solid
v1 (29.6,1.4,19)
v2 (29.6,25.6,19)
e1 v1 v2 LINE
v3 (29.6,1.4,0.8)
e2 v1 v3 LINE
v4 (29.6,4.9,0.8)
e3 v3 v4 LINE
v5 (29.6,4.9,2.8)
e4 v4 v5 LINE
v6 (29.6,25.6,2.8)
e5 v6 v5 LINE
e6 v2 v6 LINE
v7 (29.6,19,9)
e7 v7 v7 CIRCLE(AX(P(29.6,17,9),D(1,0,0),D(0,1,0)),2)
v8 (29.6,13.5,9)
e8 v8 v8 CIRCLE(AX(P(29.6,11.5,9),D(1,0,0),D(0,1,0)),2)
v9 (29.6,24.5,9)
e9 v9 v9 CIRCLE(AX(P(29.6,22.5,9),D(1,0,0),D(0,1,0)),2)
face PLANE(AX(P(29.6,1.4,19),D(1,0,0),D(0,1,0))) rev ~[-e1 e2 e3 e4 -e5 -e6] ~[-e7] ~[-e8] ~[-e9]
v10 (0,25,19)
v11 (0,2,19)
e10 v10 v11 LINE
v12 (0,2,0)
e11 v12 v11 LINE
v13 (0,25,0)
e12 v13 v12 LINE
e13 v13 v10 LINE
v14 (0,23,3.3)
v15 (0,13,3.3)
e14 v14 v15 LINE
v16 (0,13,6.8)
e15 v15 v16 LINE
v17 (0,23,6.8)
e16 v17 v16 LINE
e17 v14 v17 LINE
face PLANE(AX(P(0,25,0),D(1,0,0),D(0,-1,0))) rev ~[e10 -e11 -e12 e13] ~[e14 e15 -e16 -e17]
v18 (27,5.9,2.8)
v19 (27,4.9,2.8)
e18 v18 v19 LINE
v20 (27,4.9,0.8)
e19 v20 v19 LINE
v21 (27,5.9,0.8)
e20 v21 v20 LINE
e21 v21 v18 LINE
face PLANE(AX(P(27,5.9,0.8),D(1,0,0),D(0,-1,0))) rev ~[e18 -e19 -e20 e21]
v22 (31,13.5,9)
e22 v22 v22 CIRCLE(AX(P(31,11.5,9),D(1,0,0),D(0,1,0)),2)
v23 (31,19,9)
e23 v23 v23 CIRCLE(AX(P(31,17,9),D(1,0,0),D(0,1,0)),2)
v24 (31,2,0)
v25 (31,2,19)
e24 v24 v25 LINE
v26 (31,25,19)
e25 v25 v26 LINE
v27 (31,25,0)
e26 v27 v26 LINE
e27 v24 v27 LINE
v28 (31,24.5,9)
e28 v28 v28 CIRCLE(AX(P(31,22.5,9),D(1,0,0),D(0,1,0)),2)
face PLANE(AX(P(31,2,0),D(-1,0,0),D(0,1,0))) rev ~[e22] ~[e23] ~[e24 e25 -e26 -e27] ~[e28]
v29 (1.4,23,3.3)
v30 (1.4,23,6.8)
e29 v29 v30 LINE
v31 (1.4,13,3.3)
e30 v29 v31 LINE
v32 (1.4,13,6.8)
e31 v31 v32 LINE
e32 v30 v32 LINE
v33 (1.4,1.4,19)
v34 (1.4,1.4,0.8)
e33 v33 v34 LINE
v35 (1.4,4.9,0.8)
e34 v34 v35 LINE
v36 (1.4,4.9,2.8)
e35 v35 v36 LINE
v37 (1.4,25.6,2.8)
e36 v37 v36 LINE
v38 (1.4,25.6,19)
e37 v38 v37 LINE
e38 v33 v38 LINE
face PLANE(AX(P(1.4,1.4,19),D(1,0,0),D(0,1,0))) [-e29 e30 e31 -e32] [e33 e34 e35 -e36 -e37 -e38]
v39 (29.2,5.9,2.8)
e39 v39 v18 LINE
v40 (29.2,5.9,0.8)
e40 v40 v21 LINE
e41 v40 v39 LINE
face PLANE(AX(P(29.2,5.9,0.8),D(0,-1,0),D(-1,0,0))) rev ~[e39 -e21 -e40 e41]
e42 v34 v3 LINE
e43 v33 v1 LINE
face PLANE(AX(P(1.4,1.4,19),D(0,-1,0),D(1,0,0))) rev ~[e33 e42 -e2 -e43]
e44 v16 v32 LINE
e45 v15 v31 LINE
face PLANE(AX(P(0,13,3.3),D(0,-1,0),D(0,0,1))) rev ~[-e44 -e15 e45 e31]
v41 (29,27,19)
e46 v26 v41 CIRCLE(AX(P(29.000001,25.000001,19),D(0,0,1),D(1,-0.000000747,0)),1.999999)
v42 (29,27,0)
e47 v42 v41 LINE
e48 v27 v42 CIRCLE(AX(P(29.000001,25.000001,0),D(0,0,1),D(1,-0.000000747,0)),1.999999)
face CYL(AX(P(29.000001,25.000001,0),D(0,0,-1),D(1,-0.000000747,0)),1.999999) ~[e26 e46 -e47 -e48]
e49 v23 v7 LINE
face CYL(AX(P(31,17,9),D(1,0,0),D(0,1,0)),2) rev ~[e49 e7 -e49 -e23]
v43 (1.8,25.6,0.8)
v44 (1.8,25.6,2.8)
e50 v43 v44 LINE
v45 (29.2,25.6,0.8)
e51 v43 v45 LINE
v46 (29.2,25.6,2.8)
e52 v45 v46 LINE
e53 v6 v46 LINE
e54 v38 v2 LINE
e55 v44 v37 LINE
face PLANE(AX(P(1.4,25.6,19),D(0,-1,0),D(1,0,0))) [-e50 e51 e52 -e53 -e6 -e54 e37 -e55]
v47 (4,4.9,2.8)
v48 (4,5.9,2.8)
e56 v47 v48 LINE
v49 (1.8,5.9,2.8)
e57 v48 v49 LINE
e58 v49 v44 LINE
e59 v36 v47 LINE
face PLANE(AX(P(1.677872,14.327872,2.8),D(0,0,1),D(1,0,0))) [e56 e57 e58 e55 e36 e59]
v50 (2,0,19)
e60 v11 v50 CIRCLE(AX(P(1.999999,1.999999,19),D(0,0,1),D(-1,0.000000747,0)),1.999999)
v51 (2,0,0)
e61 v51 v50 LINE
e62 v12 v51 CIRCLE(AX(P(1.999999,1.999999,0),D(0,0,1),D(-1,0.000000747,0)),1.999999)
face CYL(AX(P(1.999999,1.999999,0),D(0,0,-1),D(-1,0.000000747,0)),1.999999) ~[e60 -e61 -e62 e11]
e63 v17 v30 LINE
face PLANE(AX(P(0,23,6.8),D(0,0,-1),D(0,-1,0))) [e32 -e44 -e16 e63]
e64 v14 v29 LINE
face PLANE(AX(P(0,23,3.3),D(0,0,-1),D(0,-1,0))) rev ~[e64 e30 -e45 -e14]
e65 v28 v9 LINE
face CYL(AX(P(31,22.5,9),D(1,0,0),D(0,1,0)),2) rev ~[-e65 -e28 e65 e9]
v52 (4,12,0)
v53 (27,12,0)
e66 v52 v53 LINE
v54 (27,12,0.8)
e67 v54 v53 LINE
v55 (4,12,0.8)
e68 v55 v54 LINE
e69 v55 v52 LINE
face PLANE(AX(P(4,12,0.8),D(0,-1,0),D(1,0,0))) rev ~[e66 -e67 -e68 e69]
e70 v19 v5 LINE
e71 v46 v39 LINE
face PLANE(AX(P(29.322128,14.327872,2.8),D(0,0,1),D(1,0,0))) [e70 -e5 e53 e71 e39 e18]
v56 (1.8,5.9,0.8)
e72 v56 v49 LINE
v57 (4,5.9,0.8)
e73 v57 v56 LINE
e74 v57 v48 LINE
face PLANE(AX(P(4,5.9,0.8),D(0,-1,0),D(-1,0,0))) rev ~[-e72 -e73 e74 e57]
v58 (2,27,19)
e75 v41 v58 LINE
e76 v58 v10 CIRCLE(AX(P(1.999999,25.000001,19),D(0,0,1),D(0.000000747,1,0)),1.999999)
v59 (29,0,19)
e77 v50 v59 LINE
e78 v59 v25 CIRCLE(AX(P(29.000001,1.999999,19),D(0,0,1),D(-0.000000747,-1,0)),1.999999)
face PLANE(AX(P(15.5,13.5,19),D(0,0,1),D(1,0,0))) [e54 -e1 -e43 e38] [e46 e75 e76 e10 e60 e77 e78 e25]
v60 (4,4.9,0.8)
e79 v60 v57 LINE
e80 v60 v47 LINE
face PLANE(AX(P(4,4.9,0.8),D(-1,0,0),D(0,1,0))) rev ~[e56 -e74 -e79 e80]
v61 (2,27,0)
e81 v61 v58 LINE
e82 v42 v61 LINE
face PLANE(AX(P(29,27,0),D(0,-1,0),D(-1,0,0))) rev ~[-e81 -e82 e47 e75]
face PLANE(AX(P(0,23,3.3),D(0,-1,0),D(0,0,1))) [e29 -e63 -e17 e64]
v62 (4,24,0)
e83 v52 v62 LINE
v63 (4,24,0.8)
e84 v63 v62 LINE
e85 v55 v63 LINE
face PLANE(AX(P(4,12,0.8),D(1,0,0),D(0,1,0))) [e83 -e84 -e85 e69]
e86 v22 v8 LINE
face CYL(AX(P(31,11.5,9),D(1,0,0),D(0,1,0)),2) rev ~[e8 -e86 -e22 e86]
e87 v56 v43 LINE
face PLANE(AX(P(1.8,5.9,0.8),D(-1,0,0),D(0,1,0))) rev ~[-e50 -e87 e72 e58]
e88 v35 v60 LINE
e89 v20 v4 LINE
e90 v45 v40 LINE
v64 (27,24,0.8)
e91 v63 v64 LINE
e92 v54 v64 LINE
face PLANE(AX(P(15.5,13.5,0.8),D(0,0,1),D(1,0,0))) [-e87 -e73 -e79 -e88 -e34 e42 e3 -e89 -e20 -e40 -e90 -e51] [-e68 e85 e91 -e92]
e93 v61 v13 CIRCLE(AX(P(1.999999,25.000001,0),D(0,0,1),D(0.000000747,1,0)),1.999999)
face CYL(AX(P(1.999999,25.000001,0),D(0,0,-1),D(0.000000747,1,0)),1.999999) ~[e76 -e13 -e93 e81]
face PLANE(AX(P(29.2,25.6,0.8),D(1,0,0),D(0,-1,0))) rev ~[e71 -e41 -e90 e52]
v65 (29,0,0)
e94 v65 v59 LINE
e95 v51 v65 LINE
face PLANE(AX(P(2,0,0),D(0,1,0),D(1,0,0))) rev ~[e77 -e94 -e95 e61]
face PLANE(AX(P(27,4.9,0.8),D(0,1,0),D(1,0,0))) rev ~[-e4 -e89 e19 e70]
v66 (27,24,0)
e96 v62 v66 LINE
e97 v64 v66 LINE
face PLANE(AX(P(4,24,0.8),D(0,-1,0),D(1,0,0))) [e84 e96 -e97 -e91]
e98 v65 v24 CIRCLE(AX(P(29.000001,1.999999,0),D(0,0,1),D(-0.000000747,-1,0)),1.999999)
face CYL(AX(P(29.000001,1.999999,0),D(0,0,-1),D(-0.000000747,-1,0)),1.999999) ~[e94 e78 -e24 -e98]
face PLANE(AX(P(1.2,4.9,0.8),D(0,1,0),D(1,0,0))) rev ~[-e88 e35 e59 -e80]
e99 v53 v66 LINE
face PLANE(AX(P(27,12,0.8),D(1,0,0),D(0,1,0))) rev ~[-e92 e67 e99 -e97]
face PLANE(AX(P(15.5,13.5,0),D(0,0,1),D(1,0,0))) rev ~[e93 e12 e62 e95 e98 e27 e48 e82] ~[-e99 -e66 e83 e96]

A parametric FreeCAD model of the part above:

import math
import FreeCAD as App
import Part
import Sketcher
Q = App.Units.Quantity


def add_polygon(sketch, points):
    """Adds a closed chain of lines whose ends are joined by coincident constraints."""
    first, n = sketch.GeometryCount, len(points)
    for a, b in zip(points, points[1:] + points[:1]):
        sketch.addGeometry(Part.LineSegment(App.Vector(*a, 0), App.Vector(*b, 0)), False)
    for i in range(n):
        sketch.addConstraint(Sketcher.Constraint("Coincident", first + i, 2, first + (i + 1) % n, 1))

doc = App.newDocument("Part")
params = doc.addObject("Spreadsheet::Sheet", "Params")
for row, (alias, value) in enumerate([
    ("sketch1_radius", "1.999999 mm"),
    ("sketch1_width", "27 mm"),
    ("sketch1_height", "23 mm"),
    ("pad1_length", "19 mm"),
    ("sketch2_width", "28.2 mm"),
    ("sketch2_height", "24.2 mm"),
    ("pocket1_length", "18.2 mm"),
    ("sketch3_width", "23 mm"),
    ("sketch3_height", "12 mm"),
    ("pocket2_length", "0.8 mm"),
    ("sketch4_diameter", "4 mm"),
    ("pocket3_length", "1.4 mm"),
    ("sketch5_width", "10 mm"),
    ("sketch5_height", "3.5 mm"),
    ("pocket4_length", "1.4 mm"),
    ("sketch6_height", "1 mm"),
    ("sketch6_width", "2.8 mm"),
    ("sketch6_width2", "2.2 mm"),
    ("sketch6_height2", "20.7 mm"),
    ("pad2_length", "2 mm"),
], start=1):
    params.set(f"A{row}", alias)
    params.set(f"B{row}", "=" + value)
    params.setAlias(f"B{row}", alias)

body = doc.addObject("PartDesign::Body", "Body")

sketch1 = doc.addObject("Sketcher::SketchObject", "Sketch")
body.addObject(sketch1)
sketch1.AttachmentSupport = (doc.XY_Plane, [""])
sketch1.MapMode = "FlatFace"
sketch1.addGeometry(Part.ArcOfCircle(Part.Circle(App.Vector(2, 2, 0), App.Vector(0, 0, 1), 2), math.radians(180), math.radians(270)), False)
sketch1.addGeometry(Part.LineSegment(App.Vector(2, 0, 0), App.Vector(29, 0, 0)), False)
sketch1.addGeometry(Part.ArcOfCircle(Part.Circle(App.Vector(29, 2, 0), App.Vector(0, 0, 1), 2), math.radians(-90), math.radians(0)), False)
sketch1.addGeometry(Part.LineSegment(App.Vector(31, 2, 0), App.Vector(31, 25, 0)), False)
sketch1.addGeometry(Part.ArcOfCircle(Part.Circle(App.Vector(29, 25, 0), App.Vector(0, 0, 1), 2), math.radians(0), math.radians(90)), False)
sketch1.addGeometry(Part.LineSegment(App.Vector(29, 27, 0), App.Vector(2, 27, 0)), False)
sketch1.addGeometry(Part.ArcOfCircle(Part.Circle(App.Vector(2, 25, 0), App.Vector(0, 0, 1), 2), math.radians(90), math.radians(180)), False)
sketch1.addGeometry(Part.LineSegment(App.Vector(0, 25, 0), App.Vector(0, 2, 0)), False)
sketch1.addConstraint(Sketcher.Constraint("Tangent", 0, 2, 1, 1))
sketch1.addConstraint(Sketcher.Constraint("Tangent", 1, 2, 2, 1))
sketch1.addConstraint(Sketcher.Constraint("Tangent", 2, 2, 3, 1))
sketch1.addConstraint(Sketcher.Constraint("Tangent", 3, 2, 4, 1))
sketch1.addConstraint(Sketcher.Constraint("Tangent", 4, 2, 5, 1))
sketch1.addConstraint(Sketcher.Constraint("Tangent", 5, 2, 6, 1))
sketch1.addConstraint(Sketcher.Constraint("Tangent", 6, 2, 7, 1))
sketch1.addConstraint(Sketcher.Constraint("Tangent", 7, 2, 0, 1))
sketch1.addConstraint(Sketcher.Constraint("Horizontal", 1))
sketch1.addConstraint(Sketcher.Constraint("Vertical", 3))
sketch1.addConstraint(Sketcher.Constraint("Horizontal", 5))
sketch1.addConstraint(Sketcher.Constraint("Vertical", 7))
sketch1.addConstraint(Sketcher.Constraint("Equal", 0, 2))
sketch1.addConstraint(Sketcher.Constraint("Equal", 2, 4))
sketch1.addConstraint(Sketcher.Constraint("Equal", 4, 6))
sketch1.addConstraint(Sketcher.Constraint("PointOnObject", 0, 2, -1))
sketch1.addConstraint(Sketcher.Constraint("PointOnObject", 6, 2, -2))
sketch1.addConstraint(Sketcher.Constraint("Radius", 0, Q("1.999999 mm")))
sketch1.addConstraint(Sketcher.Constraint("DistanceX", 1, 1, 1, 2, Q("27 mm")))
sketch1.addConstraint(Sketcher.Constraint("DistanceY", 3, 1, 3, 2, Q("23 mm")))
sketch1.setExpression("Constraints[17]", "Params.sketch1_radius")
sketch1.setExpression("Constraints[18]", "Params.sketch1_width")
sketch1.setExpression("Constraints[19]", "Params.sketch1_height")
pad1 = doc.addObject("PartDesign::Pad", "Pad")
body.addObject(pad1)
pad1.Profile = sketch1
pad1.setExpression("Length", "Params.pad1_length")

sketch2 = doc.addObject("Sketcher::SketchObject", "Sketch001")
body.addObject(sketch2)
sketch2.AttachmentSupport = (doc.XY_Plane, [""])
sketch2.MapMode = "FlatFace"
sketch2.AttachmentOffset = App.Placement(App.Vector(0, 0, 19), App.Rotation())
add_polygon(sketch2, [(1, 26), (1, 1), (30, 1), (30, 26)])
sketch2.addConstraint(Sketcher.Constraint("Vertical", 0))
sketch2.addConstraint(Sketcher.Constraint("Horizontal", 1))
sketch2.addConstraint(Sketcher.Constraint("Vertical", 2))
sketch2.addConstraint(Sketcher.Constraint("Horizontal", 3))
sketch2.addConstraint(Sketcher.Constraint("DistanceX", 1, 1, 1, 2, Q("28.2 mm")))
sketch2.addConstraint(Sketcher.Constraint("DistanceY", 0, 2, 0, 1, Q("24.2 mm")))
sketch2.addConstraint(Sketcher.Constraint("DistanceX", -1, 1, 0, 2, Q("1.4 mm")))
sketch2.addConstraint(Sketcher.Constraint("DistanceY", -1, 1, 0, 2, Q("1.4 mm")))
sketch2.setExpression("Constraints[8]", "Params.sketch2_width")
sketch2.setExpression("Constraints[9]", "Params.sketch2_height")
pocket1 = doc.addObject("PartDesign::Pocket", "Pocket")
body.addObject(pocket1)
pocket1.Profile = sketch2
pocket1.setExpression("Length", "Params.pocket1_length")

sketch3 = doc.addObject("Sketcher::SketchObject", "Sketch002")
body.addObject(sketch3)
sketch3.AttachmentSupport = (doc.XY_Plane, [""])
sketch3.MapMode = "FlatFace"
sketch3.AttachmentOffset = App.Placement(App.Vector(0, 0, 0.8), App.Rotation())
add_polygon(sketch3, [(4, 24), (4, 12), (27, 12), (27, 24)])
sketch3.addConstraint(Sketcher.Constraint("Vertical", 0))
sketch3.addConstraint(Sketcher.Constraint("Horizontal", 1))
sketch3.addConstraint(Sketcher.Constraint("Vertical", 2))
sketch3.addConstraint(Sketcher.Constraint("Horizontal", 3))
sketch3.addConstraint(Sketcher.Constraint("DistanceX", 1, 1, 1, 2, Q("23 mm")))
sketch3.addConstraint(Sketcher.Constraint("DistanceY", 0, 2, 0, 1, Q("12 mm")))
sketch3.addConstraint(Sketcher.Constraint("DistanceX", -1, 1, 0, 2, Q("4 mm")))
sketch3.addConstraint(Sketcher.Constraint("DistanceY", -1, 1, 0, 2, Q("12 mm")))
sketch3.setExpression("Constraints[8]", "Params.sketch3_width")
sketch3.setExpression("Constraints[9]", "Params.sketch3_height")
pocket2 = doc.addObject("PartDesign::Pocket", "Pocket001")
body.addObject(pocket2)
pocket2.Profile = sketch3
pocket2.setExpression("Length", "Params.pocket2_length")

sketch4 = doc.addObject("Sketcher::SketchObject", "Sketch003")
body.addObject(sketch4)
sketch4.AttachmentSupport = (doc.YZ_Plane, [""])
sketch4.MapMode = "FlatFace"
sketch4.AttachmentOffset = App.Placement(App.Vector(0, 0, 31), App.Rotation())
sketch4.addGeometry(Part.Circle(App.Vector(11.5, 9, 0), App.Vector(0, 0, 1), 2), False)
sketch4.addGeometry(Part.Circle(App.Vector(17, 9, 0), App.Vector(0, 0, 1), 2), False)
sketch4.addGeometry(Part.Circle(App.Vector(22.5, 9, 0), App.Vector(0, 0, 1), 2), False)
sketch4.addConstraint(Sketcher.Constraint("Equal", 0, 1))
sketch4.addConstraint(Sketcher.Constraint("Equal", 1, 2))
sketch4.addConstraint(Sketcher.Constraint("Horizontal", 0, 3, 1, 3))
sketch4.addConstraint(Sketcher.Constraint("Horizontal", 1, 3, 2, 3))
sketch4.addConstraint(Sketcher.Constraint("Diameter", 0, Q("4 mm")))
sketch4.addConstraint(Sketcher.Constraint("DistanceY", -1, 1, 0, 3, Q("9 mm")))
sketch4.addConstraint(Sketcher.Constraint("DistanceX", -1, 1, 1, 3, Q("17 mm")))
sketch4.addConstraint(Sketcher.Constraint("DistanceX", 0, 3, 2, 3, Q("11 mm")))
sketch4.addConstraint(Sketcher.Constraint("DistanceX", -1, 1, 0, 3, Q("11.5 mm")))
sketch4.setExpression("Constraints[4]", "Params.sketch4_diameter")
pocket3 = doc.addObject("PartDesign::Pocket", "Pocket002")
body.addObject(pocket3)
pocket3.Profile = sketch4
pocket3.setExpression("Length", "Params.pocket3_length")

sketch5 = doc.addObject("Sketcher::SketchObject", "Sketch004")
body.addObject(sketch5)
sketch5.AttachmentSupport = (doc.YZ_Plane, [""])
sketch5.MapMode = "FlatFace"
add_polygon(sketch5, [(23, 6.8), (23, 3.3), (13, 3.3), (13, 6.8)])
sketch5.addConstraint(Sketcher.Constraint("Vertical", 0))
sketch5.addConstraint(Sketcher.Constraint("Horizontal", 1))
sketch5.addConstraint(Sketcher.Constraint("Vertical", 2))
sketch5.addConstraint(Sketcher.Constraint("Horizontal", 3))
sketch5.addConstraint(Sketcher.Constraint("DistanceX", 1, 2, 1, 1, Q("10 mm")))
sketch5.addConstraint(Sketcher.Constraint("DistanceY", 0, 2, 0, 1, Q("3.5 mm")))
sketch5.addConstraint(Sketcher.Constraint("DistanceX", -1, 1, 0, 2, Q("23 mm")))
sketch5.addConstraint(Sketcher.Constraint("DistanceY", -1, 1, 0, 2, Q("3.3 mm")))
sketch5.setExpression("Constraints[8]", "Params.sketch5_width")
sketch5.setExpression("Constraints[9]", "Params.sketch5_height")
pocket4 = doc.addObject("PartDesign::Pocket", "Pocket003")
body.addObject(pocket4)
pocket4.Profile = sketch5
pocket4.setExpression("Length", "Params.pocket4_length")
pocket4.Reversed = True

sketch6 = doc.addObject("Sketcher::SketchObject", "Sketch005")
body.addObject(sketch6)
sketch6.AttachmentSupport = (doc.XY_Plane, [""])
sketch6.MapMode = "FlatFace"
sketch6.AttachmentOffset = App.Placement(App.Vector(0, 0, 0.8), App.Rotation())
add_polygon(sketch6, [(1.2, 25.6), (1.2, 4.9), (4, 4.9), (4, 5.9), (1.8, 5.9), (1.8, 25.6)])
add_polygon(sketch6, [(27, 4.9), (29.8, 4.9), (29.8, 25.6), (29.2, 25.6), (29.2, 5.9), (27, 5.9)])
sketch6.addConstraint(Sketcher.Constraint("Vertical", 0))
sketch6.addConstraint(Sketcher.Constraint("Horizontal", 1))
sketch6.addConstraint(Sketcher.Constraint("Vertical", 2))
sketch6.addConstraint(Sketcher.Constraint("Horizontal", 3))
sketch6.addConstraint(Sketcher.Constraint("Vertical", 4))
sketch6.addConstraint(Sketcher.Constraint("Horizontal", 5))
sketch6.addConstraint(Sketcher.Constraint("Horizontal", 6))
sketch6.addConstraint(Sketcher.Constraint("Vertical", 7))
sketch6.addConstraint(Sketcher.Constraint("Horizontal", 8))
sketch6.addConstraint(Sketcher.Constraint("Vertical", 9))
sketch6.addConstraint(Sketcher.Constraint("Horizontal", 10))
sketch6.addConstraint(Sketcher.Constraint("Vertical", 11))
sketch6.addConstraint(Sketcher.Constraint("Horizontal", 1, 2, 6, 2))
sketch6.addConstraint(Sketcher.Constraint("Horizontal", 5, 2, 7, 2))
sketch6.addConstraint(Sketcher.Constraint("Horizontal", 3, 2, 9, 2))
sketch6.addConstraint(Sketcher.Constraint("Equal", 1, 6))
sketch6.addConstraint(Sketcher.Constraint("Equal", 5, 8))
sketch6.addConstraint(Sketcher.Constraint("DistanceY", 2, 1, 2, 2, Q("1 mm")))
sketch6.addConstraint(Sketcher.Constraint("DistanceX", 1, 1, 1, 2, Q("2.8 mm")))
sketch6.addConstraint(Sketcher.Constraint("DistanceX", 3, 2, 3, 1, Q("2.2 mm")))
sketch6.addConstraint(Sketcher.Constraint("DistanceY", 0, 2, 0, 1, Q("20.7 mm")))
sketch6.addConstraint(Sketcher.Constraint("DistanceX", -1, 1, 1, 2, Q("4 mm")))
sketch6.addConstraint(Sketcher.Constraint("DistanceX", -1, 1, 10, 2, Q("27 mm")))
sketch6.addConstraint(Sketcher.Constraint("DistanceY", -1, 1, 0, 2, Q("4.9 mm")))
sketch6.setExpression("Constraints[29]", "Params.sketch6_height")
sketch6.setExpression("Constraints[30]", "Params.sketch6_width")
sketch6.setExpression("Constraints[31]", "Params.sketch6_width2")
sketch6.setExpression("Constraints[32]", "Params.sketch6_height2")
pad2 = doc.addObject("PartDesign::Pad", "Pad001")
body.addObject(pad2)
pad2.Profile = sketch6
pad2.setExpression("Length", "Params.pad2_length")

doc.recompute()
